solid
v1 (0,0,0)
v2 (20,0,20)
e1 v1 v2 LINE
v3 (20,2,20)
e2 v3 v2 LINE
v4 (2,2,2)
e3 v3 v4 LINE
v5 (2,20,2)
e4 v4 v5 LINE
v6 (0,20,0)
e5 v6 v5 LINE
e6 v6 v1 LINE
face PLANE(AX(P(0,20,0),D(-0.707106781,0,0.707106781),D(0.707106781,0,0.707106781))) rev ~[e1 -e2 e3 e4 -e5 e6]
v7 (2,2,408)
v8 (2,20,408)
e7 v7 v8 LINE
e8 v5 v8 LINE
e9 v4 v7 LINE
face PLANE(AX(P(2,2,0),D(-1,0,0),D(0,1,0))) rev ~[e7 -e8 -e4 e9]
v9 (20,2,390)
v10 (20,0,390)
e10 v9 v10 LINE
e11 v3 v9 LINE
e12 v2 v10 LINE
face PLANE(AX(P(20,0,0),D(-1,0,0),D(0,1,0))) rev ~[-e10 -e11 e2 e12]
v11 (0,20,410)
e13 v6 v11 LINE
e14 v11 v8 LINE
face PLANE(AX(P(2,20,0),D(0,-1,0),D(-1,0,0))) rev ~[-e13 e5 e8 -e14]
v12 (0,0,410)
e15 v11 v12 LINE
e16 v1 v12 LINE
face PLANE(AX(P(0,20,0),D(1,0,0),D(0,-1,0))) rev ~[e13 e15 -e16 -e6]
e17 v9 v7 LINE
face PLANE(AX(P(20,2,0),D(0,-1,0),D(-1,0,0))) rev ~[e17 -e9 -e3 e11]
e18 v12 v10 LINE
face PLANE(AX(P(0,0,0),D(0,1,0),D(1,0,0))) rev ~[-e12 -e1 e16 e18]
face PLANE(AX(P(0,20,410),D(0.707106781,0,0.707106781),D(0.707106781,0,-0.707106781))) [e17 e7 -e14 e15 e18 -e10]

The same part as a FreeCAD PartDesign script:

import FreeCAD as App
import Part
import Sketcher
from FreeCAD import Vector
Q = App.Units.Quantity

doc = App.newDocument("Part")
body = doc.addObject("PartDesign::Body", "Body")

# Sketch on XY plane
sketch1 = doc.addObject("Sketcher::SketchObject", "Sketch")
body.addObject(sketch1)
sketch1.AttachmentSupport = (doc.XY_Plane, [""])
sketch1.MapMode = "FlatFace"
sketch1.addGeometry([
    Part.LineSegment(Vector(0, 20, 0), Vector(0, 0, 0)),  # 0
    Part.LineSegment(Vector(0, 0, 0), Vector(20, 0, 0)),  # 1
    Part.LineSegment(Vector(20, 0, 0), Vector(20, 2, 0)),  # 2
    Part.LineSegment(Vector(20, 2, 0), Vector(2, 2, 0)),  # 3
    Part.LineSegment(Vector(2, 2, 0), Vector(2, 20, 0)),  # 4
    Part.LineSegment(Vector(2, 20, 0), Vector(0, 20, 0)),  # 5
], False)
sketch1.addConstraint([
    Sketcher.Constraint("Coincident", 0, 2, 1, 1),
    Sketcher.Constraint("Coincident", 1, 2, 2, 1),
    Sketcher.Constraint("Coincident", 2, 2, 3, 1),
    Sketcher.Constraint("Coincident", 3, 2, 4, 1),
    Sketcher.Constraint("Coincident", 4, 2, 5, 1),
    Sketcher.Constraint("Coincident", 5, 2, 0, 1),
    Sketcher.Constraint("Vertical", 0),
    Sketcher.Constraint("Horizontal", 1),
    Sketcher.Constraint("Vertical", 2),
    Sketcher.Constraint("Horizontal", 3),
    Sketcher.Constraint("Vertical", 4),
    Sketcher.Constraint("Horizontal", 5),
    Sketcher.Constraint("Coincident", 0, 2, -1, 1),
    Sketcher.Constraint("Equal", 1, 0),
    Sketcher.Constraint("Equal", 5, 2),
    Sketcher.Constraint("DistanceX", 1, 1, 1, 2, Q("20 mm")),
    Sketcher.Constraint("DistanceX", 3, 2, 3, 1, Q("18 mm")),
])
pad1 = doc.addObject("PartDesign::Pad", "Pad")
body.addObject(pad1)
pad1.Profile = sketch1
pad1.Length = 410

# Sketch on XZ plane
sketch2 = doc.addObject("Sketcher::SketchObject", "Sketch001")
body.addObject(sketch2)
sketch2.AttachmentSupport = (doc.XZ_Plane, [""])
sketch2.MapMode = "FlatFace"
sketch2.AttachmentOffset = App.Placement(Vector(0, 0, -20), App.Rotation())
sketch2.addGeometry([
    Part.LineSegment(Vector(0, 0, 0), Vector(20, 20, 0)),  # 0
    Part.LineSegment(Vector(20, 20, 0), Vector(20, 0, 0)),  # 1
    Part.LineSegment(Vector(20, 0, 0), Vector(0, 0, 0)),  # 2
    Part.LineSegment(Vector(20, 390, 0), Vector(0, 410, 0)),  # 3
    Part.LineSegment(Vector(0, 410, 0), Vector(20, 410, 0)),  # 4
    Part.LineSegment(Vector(20, 410, 0), Vector(20, 390, 0)),  # 5
], False)
sketch2.addConstraint([
    Sketcher.Constraint("Coincident", 0, 2, 1, 1),
    Sketcher.Constraint("Coincident", 1, 2, 2, 1),
    Sketcher.Constraint("Coincident", 2, 2, 0, 1),
    Sketcher.Constraint("Coincident", 3, 2, 4, 1),
    Sketcher.Constraint("Coincident", 4, 2, 5, 1),
    Sketcher.Constraint("Coincident", 5, 2, 3, 1),
    Sketcher.Constraint("Vertical", 1),
    Sketcher.Constraint("Horizontal", 2),
    Sketcher.Constraint("Horizontal", 4),
    Sketcher.Constraint("Vertical", 5),
    Sketcher.Constraint("Coincident", 2, 2, -1, 1),
    Sketcher.Constraint("PointOnObject", 3, 2, -2),
    Sketcher.Constraint("Perpendicular", 0, 3),
    Sketcher.Constraint("Vertical", 1, 2, 4, 2),
    Sketcher.Constraint("Equal", 4, 1),
    Sketcher.Constraint("DistanceX", 2, 2, 2, 1, Q("20 mm")),
    Sketcher.Constraint("DistanceY", -1, 1, 3, 2, Q("410 mm")),
])
pocket1 = doc.addObject("PartDesign::Pocket", "Pocket")
body.addObject(pocket1)
pocket1.Profile = sketch2
pocket1.Type = "ThroughAll"
pocket1.Reversed = True

doc.recompute()
